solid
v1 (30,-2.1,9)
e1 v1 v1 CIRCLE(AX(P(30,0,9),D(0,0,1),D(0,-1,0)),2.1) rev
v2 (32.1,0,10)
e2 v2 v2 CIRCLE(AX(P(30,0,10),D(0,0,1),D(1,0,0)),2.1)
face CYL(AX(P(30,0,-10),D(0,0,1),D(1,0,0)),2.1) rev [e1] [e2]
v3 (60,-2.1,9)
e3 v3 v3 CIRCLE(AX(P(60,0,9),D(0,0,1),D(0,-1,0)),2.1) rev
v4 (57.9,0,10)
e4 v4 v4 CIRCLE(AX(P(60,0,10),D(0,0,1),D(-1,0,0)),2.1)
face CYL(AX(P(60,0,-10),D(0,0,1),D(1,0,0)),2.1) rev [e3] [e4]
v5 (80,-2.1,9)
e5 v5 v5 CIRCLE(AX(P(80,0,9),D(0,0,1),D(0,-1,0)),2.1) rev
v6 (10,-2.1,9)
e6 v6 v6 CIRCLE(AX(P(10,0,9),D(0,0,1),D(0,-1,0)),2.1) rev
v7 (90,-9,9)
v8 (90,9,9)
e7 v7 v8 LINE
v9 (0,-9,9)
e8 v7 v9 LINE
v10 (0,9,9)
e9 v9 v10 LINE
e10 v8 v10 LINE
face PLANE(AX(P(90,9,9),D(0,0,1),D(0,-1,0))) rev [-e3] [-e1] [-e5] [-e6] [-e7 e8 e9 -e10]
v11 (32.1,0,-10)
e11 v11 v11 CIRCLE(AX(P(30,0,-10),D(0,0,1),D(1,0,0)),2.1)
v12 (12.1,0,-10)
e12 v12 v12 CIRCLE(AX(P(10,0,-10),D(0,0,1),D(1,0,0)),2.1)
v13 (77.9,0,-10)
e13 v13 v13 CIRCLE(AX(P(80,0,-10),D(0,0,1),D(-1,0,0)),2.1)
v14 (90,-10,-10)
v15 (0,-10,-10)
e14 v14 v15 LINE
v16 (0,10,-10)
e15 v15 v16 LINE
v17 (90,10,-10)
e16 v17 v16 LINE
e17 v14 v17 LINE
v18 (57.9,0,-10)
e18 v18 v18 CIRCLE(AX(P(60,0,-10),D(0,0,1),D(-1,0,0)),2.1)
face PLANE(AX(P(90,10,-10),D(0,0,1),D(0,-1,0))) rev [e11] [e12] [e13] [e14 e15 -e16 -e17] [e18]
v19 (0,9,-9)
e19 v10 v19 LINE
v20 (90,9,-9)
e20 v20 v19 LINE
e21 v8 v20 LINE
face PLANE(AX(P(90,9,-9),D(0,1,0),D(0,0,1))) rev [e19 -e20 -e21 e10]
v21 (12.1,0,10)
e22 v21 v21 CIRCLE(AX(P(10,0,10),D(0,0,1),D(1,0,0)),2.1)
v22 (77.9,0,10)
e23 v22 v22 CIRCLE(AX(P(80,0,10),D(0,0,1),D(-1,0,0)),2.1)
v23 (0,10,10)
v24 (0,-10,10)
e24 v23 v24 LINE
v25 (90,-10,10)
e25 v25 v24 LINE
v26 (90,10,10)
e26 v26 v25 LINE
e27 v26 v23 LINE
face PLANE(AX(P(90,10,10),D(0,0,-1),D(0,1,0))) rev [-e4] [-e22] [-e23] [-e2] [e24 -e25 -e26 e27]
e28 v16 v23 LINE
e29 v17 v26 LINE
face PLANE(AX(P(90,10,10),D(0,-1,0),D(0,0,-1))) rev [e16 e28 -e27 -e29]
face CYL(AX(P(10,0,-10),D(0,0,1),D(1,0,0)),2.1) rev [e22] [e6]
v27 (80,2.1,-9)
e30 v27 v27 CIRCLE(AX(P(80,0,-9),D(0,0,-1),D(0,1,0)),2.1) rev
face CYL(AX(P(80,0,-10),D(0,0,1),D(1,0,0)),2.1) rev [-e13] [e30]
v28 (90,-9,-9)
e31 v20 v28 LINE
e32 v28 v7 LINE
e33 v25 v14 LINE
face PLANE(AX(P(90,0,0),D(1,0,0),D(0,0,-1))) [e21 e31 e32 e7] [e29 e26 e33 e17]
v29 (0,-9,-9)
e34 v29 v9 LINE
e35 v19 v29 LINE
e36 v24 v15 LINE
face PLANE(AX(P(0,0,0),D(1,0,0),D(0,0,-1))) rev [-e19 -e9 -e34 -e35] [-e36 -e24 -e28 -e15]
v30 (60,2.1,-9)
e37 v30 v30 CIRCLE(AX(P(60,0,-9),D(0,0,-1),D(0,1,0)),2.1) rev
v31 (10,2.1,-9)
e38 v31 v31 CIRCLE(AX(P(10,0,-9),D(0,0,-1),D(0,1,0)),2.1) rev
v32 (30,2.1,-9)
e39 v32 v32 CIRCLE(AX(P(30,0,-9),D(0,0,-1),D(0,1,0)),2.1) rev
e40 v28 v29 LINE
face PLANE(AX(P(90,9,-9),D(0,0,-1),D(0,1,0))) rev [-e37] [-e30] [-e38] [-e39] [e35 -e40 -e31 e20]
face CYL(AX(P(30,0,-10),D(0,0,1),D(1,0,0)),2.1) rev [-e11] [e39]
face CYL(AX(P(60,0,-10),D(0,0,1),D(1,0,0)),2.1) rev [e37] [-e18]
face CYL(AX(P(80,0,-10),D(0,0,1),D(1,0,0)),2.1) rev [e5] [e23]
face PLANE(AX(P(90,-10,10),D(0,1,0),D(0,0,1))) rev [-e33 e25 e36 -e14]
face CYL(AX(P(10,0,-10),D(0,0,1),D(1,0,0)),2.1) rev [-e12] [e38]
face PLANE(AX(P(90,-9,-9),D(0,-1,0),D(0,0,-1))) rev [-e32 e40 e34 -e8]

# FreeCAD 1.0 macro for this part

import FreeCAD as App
import Part
import Sketcher
from FreeCAD import Vector
Q = App.Units.Quantity


def add_polygon(sketch, points):
    """Adds a closed chain of lines whose ends are joined by coincident constraints."""
    first, n = sketch.GeometryCount, len(points)
    for a, b in zip(points, points[1:] + points[:1]):
        sketch.addGeometry(Part.LineSegment(App.Vector(*a, 0), App.Vector(*b, 0)), False)
    for i in range(n):
        sketch.addConstraint(Sketcher.Constraint("Coincident", first + i, 2, first + (i + 1) % n, 1))

doc = App.newDocument("Part")
params = doc.addObject("Spreadsheet::Sheet", "Params")
for row, (alias, value) in enumerate([
    ("sketch1_width", "20 mm"),
    ("pad1_length", "90 mm"),
    ("sketch2_diameter", "4.2 mm"),
    ("sketch3_width", "18 mm"),
], start=1):
    params.set(f"A{row}", alias)
    params.set(f"B{row}", "=" + value)
    params.setAlias(f"B{row}", alias)

body = doc.addObject("PartDesign::Body", "Body")

# Sketch on YZ plane
sketch1 = body.newObject("Sketcher::SketchObject", "Sketch")
sketch1.AttachmentSupport = (doc.getObject("YZ_Plane"), [""])
sketch1.MapMode = "FlatFace"
add_polygon(sketch1, [(10, 10), (-10, 10), (-10, -10), (10, -10)])  # lines 0-3
sketch1.addConstraint([
    Sketcher.Constraint("Horizontal", 0),
    Sketcher.Constraint("Vertical", 1),
    Sketcher.Constraint("Horizontal", 2),
    Sketcher.Constraint("Vertical", 3),
    Sketcher.Constraint("Symmetric", 0, 2, 2, 2, -1, 1),
    Sketcher.Constraint("Equal", 2, 1),
    Sketcher.Constraint("DistanceX", 0, 2, 0, 1, Q("20 mm")),
])
sketch1.setExpression("Constraints[10]", "Params.sketch1_width")
pad1 = body.newObject("PartDesign::Pad", "Pad")
pad1.Profile = sketch1
pad1.setExpression("Length", "Params.pad1_length")

# Sketch on XY plane
sketch2 = body.newObject("Sketcher::SketchObject", "Sketch001")
sketch2.AttachmentSupport = (doc.getObject("XY_Plane"), [""])
sketch2.MapMode = "FlatFace"
sketch2.AttachmentOffset = App.Placement(Vector(0, 0, 10), App.Rotation())
sketch2.addGeometry([
    Part.Circle(Vector(10, 0, 0), Vector(0, 0, 1), 2.1),
    Part.Circle(Vector(30, 0, 0), Vector(0, 0, 1), 2.1),
    Part.Circle(Vector(60, 0, 0), Vector(0, 0, 1), 2.1),
    Part.Circle(Vector(80, 0, 0), Vector(0, 0, 1), 2.1),
], False)
sketch2.addConstraint([
    Sketcher.Constraint("Equal", 0, 1),
    Sketcher.Constraint("Equal", 1, 2),
    Sketcher.Constraint("Equal", 2, 3),
    Sketcher.Constraint("PointOnObject", 0, 3, -1),
    Sketcher.Constraint("PointOnObject", 1, 3, -1),
    Sketcher.Constraint("PointOnObject", 2, 3, -1),
    Sketcher.Constraint("PointOnObject", 3, 3, -1),
    Sketcher.Constraint("Diameter", 0, Q("4.2 mm")),
    Sketcher.Constraint("DistanceX", -1, 1, 0, 3, Q("10 mm")),
    Sketcher.Constraint("DistanceX", -1, 1, 1, 3, Q("30 mm")),
    Sketcher.Constraint("DistanceX", -1, 1, 2, 3, Q("60 mm")),
    Sketcher.Constraint("DistanceX", -1, 1, 3, 3, Q("80 mm")),
])
sketch2.setExpression("Constraints[7]", "Params.sketch2_diameter")
pocket1 = body.newObject("PartDesign::Pocket", "Pocket")
pocket1.Profile = sketch2
pocket1.Type = "ThroughAll"

# Sketch on YZ plane
sketch3 = body.newObject("Sketcher::SketchObject", "Sketch002")
sketch3.AttachmentSupport = (doc.getObject("YZ_Plane"), [""])
sketch3.MapMode = "FlatFace"
add_polygon(sketch3, [(9, -9), (-9, -9), (-9, 9), (9, 9)])  # lines 0-3
sketch3.addConstraint([
    Sketcher.Constraint("Horizontal", 0),
    Sketcher.Constraint("Vertical", 1),
    Sketcher.Constraint("Horizontal", 2),
    Sketcher.Constraint("Vertical", 3),
    Sketcher.Constraint("Symmetric", 0, 2, 2, 2, -1, 1),
    Sketcher.Constraint("Equal", 2, 1),
    Sketcher.Constraint("DistanceX", 0, 2, 0, 1, Q("18 mm")),
])
sketch3.setExpression("Constraints[10]", "Params.sketch3_width")
pocket2 = body.newObject("PartDesign::Pocket", "Pocket001")
pocket2.Profile = sketch3
pocket2.Type = "ThroughAll"
pocket2.Reversed = True

doc.recompute()
